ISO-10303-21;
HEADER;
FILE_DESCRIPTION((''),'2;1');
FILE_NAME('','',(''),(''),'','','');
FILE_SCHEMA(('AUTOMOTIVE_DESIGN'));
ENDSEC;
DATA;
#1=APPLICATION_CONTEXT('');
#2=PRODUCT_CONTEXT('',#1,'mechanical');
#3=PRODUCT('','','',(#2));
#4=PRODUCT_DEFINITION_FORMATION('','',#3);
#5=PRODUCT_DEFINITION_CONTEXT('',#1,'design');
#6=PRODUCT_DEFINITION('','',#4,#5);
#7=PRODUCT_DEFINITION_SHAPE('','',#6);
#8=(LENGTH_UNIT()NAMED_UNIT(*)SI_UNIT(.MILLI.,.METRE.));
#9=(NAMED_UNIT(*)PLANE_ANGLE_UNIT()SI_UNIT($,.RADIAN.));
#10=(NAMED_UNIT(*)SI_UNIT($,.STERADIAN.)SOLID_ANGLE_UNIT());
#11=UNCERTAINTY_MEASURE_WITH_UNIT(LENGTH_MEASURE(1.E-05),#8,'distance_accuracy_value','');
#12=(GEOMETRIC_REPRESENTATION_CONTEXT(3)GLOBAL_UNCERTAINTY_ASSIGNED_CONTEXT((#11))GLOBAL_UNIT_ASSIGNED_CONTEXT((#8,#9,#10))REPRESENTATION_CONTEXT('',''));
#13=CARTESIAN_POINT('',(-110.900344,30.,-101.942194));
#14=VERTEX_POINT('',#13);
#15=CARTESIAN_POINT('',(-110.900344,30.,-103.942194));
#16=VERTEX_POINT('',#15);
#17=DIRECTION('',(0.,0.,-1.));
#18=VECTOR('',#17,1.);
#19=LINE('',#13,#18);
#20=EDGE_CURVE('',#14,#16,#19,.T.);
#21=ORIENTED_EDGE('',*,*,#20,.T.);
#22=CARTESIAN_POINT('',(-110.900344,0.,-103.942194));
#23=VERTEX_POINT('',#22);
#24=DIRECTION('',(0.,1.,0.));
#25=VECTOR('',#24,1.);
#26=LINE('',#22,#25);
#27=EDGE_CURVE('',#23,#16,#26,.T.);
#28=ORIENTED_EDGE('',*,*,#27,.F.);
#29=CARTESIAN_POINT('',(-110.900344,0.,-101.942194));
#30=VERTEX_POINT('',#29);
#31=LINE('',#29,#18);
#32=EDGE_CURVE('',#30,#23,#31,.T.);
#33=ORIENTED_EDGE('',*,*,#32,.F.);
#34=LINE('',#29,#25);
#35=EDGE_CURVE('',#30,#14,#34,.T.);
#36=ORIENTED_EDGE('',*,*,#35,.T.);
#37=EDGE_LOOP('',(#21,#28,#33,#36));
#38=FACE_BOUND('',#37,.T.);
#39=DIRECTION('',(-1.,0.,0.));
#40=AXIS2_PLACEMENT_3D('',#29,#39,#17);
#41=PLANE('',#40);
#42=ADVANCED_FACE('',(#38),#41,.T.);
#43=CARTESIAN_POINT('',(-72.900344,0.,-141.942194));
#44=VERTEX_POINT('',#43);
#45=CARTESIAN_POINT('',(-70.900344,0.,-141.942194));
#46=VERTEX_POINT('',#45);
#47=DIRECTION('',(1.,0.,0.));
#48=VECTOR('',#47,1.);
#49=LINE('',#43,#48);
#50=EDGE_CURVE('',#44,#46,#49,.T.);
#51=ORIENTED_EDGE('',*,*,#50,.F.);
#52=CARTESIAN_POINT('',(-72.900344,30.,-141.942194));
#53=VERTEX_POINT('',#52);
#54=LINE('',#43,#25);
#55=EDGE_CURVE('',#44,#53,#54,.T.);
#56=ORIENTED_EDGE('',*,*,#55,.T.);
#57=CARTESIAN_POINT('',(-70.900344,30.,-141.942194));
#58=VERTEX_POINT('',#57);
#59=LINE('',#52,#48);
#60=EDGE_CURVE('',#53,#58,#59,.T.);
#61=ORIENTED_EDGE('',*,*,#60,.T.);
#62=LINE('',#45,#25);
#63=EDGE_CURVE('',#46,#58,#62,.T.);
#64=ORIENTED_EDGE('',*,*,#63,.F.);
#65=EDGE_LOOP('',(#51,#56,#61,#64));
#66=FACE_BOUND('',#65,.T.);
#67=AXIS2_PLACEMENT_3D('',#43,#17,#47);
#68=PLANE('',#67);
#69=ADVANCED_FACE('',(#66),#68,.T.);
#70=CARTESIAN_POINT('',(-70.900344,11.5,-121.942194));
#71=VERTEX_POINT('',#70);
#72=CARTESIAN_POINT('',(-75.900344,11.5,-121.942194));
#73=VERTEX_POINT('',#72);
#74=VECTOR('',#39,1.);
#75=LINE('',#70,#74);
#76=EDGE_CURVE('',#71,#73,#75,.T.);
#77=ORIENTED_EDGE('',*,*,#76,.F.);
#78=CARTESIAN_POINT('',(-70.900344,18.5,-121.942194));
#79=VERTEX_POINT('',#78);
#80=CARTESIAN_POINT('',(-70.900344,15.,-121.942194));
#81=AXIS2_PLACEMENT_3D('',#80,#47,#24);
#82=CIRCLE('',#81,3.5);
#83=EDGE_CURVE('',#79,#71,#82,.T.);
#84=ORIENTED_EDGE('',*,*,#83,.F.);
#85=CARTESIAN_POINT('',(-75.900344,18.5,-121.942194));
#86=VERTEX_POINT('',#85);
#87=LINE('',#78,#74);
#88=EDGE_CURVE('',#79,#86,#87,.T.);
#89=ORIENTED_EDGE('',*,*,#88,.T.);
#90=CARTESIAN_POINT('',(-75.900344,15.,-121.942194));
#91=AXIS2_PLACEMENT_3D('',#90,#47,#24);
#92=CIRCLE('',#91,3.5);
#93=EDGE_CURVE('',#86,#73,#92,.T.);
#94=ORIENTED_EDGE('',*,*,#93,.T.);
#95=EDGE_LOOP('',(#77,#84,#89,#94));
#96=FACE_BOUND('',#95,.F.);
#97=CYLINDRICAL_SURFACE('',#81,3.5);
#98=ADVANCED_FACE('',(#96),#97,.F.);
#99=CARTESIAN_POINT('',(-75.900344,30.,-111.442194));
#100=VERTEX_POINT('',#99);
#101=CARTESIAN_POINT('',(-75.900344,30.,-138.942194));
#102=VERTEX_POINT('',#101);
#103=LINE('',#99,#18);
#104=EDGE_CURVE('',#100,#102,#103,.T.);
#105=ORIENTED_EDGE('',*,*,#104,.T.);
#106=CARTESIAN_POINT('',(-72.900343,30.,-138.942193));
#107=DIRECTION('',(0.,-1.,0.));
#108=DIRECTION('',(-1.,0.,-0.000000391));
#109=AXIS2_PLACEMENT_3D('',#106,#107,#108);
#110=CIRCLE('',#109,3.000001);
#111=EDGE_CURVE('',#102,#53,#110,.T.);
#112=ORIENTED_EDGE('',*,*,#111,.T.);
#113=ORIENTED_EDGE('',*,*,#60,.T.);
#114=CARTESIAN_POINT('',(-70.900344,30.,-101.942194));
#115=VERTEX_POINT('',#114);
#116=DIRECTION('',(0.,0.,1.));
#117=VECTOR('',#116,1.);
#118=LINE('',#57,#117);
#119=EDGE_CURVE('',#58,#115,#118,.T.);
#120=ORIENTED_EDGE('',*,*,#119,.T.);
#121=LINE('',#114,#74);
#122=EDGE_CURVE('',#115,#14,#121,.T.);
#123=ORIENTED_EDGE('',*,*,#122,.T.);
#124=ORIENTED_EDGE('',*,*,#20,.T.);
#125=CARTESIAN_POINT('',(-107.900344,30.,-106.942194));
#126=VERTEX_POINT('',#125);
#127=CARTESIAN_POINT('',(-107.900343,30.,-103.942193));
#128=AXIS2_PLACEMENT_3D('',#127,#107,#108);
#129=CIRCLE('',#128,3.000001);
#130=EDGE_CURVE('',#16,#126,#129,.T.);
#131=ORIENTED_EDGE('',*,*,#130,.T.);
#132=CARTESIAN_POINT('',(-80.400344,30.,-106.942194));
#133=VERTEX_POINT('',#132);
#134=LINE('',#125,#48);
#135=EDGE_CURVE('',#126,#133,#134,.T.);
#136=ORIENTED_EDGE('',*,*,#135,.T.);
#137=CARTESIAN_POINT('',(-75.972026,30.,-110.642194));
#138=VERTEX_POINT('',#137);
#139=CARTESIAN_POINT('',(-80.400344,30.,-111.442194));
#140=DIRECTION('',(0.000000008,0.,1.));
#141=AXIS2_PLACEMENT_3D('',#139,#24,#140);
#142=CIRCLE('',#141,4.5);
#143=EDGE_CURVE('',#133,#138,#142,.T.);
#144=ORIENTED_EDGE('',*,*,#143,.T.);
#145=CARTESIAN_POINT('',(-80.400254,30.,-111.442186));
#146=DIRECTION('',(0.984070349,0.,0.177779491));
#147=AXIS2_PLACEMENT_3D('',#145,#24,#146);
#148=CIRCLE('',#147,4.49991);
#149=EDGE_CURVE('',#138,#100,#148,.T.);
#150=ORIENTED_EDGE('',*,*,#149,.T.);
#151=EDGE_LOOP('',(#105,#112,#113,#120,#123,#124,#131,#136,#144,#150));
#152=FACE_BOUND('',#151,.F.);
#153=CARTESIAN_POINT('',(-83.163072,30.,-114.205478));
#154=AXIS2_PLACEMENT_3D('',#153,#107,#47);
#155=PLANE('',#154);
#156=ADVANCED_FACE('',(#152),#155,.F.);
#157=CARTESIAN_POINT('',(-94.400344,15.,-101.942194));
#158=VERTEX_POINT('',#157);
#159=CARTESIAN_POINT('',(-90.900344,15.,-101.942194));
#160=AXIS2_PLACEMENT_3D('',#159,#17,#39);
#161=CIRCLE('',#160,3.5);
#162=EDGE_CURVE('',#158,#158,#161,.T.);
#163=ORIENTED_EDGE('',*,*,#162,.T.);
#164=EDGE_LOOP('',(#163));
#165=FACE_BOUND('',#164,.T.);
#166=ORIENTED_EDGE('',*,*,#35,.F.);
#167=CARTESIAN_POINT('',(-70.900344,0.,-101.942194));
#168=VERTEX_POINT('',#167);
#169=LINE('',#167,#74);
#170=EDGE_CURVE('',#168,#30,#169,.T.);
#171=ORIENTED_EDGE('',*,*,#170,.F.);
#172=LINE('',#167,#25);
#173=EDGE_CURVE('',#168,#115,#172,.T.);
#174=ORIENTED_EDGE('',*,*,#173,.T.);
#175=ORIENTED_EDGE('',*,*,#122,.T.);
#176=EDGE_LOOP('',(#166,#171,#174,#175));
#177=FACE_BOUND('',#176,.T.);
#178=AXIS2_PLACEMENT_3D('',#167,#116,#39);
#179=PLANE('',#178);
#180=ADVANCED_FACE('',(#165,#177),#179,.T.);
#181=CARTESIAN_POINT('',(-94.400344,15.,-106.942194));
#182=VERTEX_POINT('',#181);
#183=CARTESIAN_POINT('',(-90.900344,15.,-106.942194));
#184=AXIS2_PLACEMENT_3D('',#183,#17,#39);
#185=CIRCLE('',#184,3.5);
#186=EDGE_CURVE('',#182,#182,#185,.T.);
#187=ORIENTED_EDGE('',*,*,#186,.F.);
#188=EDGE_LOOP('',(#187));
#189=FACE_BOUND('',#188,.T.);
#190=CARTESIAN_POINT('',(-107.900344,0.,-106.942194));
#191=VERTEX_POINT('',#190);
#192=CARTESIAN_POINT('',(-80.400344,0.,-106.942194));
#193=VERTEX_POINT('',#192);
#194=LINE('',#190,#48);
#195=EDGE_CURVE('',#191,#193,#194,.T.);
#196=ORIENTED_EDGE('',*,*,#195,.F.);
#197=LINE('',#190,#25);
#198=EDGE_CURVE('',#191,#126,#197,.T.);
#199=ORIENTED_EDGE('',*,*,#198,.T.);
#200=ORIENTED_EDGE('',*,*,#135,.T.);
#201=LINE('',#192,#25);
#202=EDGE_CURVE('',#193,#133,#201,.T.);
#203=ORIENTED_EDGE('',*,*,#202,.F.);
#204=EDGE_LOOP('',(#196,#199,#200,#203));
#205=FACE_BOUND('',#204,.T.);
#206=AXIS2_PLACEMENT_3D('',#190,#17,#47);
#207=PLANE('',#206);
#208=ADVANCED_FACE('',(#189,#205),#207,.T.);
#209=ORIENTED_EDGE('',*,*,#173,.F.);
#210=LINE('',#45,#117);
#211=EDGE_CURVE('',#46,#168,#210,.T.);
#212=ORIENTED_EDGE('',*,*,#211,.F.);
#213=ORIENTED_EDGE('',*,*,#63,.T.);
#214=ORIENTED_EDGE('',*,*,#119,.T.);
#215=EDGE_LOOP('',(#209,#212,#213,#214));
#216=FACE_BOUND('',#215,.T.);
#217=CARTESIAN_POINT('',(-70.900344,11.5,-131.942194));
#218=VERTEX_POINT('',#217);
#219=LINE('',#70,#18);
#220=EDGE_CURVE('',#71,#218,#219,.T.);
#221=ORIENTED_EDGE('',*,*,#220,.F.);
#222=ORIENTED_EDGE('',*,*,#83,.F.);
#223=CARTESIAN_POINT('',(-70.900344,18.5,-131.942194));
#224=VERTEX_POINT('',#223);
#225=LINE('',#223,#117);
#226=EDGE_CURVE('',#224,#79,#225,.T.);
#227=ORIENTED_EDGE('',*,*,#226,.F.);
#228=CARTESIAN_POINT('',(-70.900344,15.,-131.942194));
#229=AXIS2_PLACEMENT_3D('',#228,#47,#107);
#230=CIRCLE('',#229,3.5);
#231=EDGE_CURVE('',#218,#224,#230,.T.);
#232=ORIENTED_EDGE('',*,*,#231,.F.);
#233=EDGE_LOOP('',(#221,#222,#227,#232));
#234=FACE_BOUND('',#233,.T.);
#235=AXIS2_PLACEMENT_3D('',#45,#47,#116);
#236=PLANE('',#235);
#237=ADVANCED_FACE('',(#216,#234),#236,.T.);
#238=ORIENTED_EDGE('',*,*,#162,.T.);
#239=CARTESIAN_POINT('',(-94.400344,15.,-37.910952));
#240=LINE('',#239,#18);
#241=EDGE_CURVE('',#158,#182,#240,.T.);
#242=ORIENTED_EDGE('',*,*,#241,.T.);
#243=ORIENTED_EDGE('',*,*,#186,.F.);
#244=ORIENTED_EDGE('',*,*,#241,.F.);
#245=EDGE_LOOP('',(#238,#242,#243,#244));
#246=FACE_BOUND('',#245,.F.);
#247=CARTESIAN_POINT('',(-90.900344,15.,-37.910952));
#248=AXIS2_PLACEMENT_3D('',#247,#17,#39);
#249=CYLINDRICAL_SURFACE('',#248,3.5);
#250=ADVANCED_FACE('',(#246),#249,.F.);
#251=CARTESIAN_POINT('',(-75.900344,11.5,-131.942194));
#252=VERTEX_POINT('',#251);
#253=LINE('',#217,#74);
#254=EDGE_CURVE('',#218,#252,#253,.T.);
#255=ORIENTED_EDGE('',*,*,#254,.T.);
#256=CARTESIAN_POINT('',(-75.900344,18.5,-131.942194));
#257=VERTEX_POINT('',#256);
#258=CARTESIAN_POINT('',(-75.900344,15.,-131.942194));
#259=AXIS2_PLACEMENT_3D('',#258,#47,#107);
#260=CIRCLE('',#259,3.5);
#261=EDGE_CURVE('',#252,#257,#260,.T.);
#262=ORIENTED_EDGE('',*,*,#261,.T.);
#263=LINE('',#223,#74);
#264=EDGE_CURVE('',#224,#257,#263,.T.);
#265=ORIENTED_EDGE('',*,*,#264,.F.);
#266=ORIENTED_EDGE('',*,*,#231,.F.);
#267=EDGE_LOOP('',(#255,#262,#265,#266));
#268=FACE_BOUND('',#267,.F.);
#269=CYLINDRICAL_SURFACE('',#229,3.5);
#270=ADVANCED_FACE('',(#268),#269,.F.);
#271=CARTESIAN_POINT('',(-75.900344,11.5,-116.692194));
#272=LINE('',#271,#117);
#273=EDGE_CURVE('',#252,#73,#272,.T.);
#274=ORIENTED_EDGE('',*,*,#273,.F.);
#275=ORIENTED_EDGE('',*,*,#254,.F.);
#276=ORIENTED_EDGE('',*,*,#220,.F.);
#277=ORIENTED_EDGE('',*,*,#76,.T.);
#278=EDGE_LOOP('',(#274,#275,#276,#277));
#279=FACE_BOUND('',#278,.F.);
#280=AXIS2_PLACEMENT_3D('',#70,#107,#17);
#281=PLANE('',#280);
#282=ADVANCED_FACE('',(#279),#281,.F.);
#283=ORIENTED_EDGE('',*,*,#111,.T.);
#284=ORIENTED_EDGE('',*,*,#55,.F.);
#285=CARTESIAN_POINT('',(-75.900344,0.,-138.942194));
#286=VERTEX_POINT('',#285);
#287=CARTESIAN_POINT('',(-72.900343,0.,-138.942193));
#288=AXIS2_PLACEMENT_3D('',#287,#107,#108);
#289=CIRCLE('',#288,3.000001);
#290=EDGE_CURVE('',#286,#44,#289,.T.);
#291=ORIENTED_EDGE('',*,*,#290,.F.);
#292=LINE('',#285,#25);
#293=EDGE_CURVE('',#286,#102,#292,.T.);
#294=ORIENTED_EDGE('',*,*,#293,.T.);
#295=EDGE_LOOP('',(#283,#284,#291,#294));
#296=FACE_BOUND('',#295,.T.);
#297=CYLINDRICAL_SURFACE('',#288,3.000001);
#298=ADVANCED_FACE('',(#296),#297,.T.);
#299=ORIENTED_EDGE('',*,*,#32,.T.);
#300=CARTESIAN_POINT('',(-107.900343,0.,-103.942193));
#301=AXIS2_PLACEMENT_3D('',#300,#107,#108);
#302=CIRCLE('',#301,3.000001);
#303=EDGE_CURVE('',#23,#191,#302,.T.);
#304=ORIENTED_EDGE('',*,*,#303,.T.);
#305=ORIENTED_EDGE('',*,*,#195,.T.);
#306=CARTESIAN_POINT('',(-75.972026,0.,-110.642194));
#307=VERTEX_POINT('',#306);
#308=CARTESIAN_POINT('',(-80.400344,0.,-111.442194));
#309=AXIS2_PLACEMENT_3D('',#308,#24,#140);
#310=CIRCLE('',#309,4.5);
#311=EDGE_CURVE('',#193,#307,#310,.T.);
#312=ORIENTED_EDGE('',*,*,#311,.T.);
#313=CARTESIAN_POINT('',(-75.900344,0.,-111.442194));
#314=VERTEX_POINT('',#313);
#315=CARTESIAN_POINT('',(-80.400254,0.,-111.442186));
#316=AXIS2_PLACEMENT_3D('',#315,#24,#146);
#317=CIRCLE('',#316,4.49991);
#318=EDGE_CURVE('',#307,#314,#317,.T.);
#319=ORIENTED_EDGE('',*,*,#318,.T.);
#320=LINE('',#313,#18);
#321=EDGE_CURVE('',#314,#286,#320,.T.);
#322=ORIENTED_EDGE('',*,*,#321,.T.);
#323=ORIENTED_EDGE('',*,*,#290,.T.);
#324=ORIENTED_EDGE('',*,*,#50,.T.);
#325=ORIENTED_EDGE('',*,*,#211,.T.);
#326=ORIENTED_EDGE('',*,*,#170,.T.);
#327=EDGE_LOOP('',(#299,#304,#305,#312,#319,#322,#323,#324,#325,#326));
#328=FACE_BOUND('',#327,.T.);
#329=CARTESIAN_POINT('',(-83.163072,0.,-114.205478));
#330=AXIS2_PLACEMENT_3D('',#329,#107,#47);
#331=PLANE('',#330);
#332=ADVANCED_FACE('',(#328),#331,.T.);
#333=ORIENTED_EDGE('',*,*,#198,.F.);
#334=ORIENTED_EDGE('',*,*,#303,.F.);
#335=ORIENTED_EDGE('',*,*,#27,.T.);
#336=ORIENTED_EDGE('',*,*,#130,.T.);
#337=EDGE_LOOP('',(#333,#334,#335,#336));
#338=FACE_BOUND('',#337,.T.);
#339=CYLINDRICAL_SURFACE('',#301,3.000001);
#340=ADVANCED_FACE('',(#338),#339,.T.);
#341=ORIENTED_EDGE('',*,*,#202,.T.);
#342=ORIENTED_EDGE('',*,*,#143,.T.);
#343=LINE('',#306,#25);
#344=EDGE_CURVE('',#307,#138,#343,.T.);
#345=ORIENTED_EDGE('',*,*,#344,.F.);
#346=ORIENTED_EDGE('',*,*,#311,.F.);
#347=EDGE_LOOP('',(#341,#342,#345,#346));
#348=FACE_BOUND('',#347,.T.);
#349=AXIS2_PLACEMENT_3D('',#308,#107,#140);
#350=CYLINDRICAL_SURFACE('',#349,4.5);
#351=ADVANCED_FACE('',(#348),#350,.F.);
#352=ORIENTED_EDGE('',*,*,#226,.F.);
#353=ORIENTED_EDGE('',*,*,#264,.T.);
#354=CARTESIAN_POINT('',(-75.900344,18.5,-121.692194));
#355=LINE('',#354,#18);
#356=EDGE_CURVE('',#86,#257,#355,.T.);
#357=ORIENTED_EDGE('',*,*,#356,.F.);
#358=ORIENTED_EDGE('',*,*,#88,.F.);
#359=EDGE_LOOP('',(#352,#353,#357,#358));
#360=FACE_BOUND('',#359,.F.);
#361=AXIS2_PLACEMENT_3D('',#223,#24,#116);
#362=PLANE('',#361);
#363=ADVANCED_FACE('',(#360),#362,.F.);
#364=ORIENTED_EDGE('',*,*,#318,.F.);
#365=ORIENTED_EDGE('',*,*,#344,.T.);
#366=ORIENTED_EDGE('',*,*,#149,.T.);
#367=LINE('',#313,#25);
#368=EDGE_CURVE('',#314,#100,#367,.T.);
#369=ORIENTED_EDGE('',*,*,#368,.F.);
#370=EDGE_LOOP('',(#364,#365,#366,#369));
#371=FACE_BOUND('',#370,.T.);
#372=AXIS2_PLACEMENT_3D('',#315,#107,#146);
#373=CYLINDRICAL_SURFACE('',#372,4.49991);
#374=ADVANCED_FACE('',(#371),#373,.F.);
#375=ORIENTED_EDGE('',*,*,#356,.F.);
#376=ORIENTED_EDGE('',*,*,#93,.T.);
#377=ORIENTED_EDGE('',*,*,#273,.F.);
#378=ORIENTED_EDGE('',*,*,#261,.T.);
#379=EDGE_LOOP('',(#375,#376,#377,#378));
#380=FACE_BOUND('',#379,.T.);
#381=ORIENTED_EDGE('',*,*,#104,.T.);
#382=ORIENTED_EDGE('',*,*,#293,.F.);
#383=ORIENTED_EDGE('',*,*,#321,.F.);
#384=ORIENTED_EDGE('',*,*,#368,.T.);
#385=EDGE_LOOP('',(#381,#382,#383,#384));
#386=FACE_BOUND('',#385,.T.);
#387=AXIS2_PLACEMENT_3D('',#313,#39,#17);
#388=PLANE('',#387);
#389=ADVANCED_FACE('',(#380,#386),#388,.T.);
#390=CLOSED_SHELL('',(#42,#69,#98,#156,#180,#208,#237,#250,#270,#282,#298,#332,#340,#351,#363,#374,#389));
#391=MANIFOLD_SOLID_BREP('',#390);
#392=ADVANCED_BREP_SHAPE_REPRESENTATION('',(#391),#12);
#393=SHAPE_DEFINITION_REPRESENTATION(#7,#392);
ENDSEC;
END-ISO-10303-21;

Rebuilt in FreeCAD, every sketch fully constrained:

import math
import FreeCAD as App
import Part
import Sketcher
from FreeCAD import Vector
Q = App.Units.Quantity

doc = App.newDocument("Part")
params = doc.addObject("Spreadsheet::Sheet", "Params")
for row, (alias, value) in enumerate([
    ("sketch1_radius", "3.000001 mm"),
    ("sketch1_radius2", "3.000001 mm"),
    ("sketch1_radius3", "4.5 mm"),
    ("sketch1_width", "2 mm"),
    ("sketch1_width2", "40 mm"),
    ("pad1_length", "30 mm"),
    ("sketch2_diameter", "7 mm"),
    ("hole_diameter", "7 mm"),
    ("sketch3_radius", "3.5 mm"),
    ("sketch3_height", "10 mm"),
    ("pocket1_length", "25 mm"),
], start=1):
    params.set(f"A{row}", alias)
    params.set(f"B{row}", "=" + value)
    params.setAlias(f"B{row}", alias)

body = doc.addObject("PartDesign::Body", "Body")

# Sketch on XZ plane
sketch1 = body.newObject("Sketcher::SketchObject", "Sketch")
sketch1.AttachmentSupport = (doc.getObject("XZ_Plane"), [""])
sketch1.MapMode = "FlatFace"
sketch1.addGeometry([
    Part.ArcOfCircle(Part.Circle(Vector(-80.400344, -111.442194, 0), Vector(0, 0, 1), 4.5), math.radians(10.240349), math.radians(90)),  # 0
    Part.ArcOfCircle(Part.Circle(Vector(-80.400254, -111.442186, 0), Vector(0, 0, 1), 4.49991), math.radians(-0.000105), math.radians(10.240448)),  # 1
    Part.LineSegment(Vector(-75.900344, -111.442194, 0), Vector(-75.900344, -138.942194, 0)),  # 2
    Part.ArcOfCircle(Part.Circle(Vector(-72.900343, -138.942193, 0), Vector(0, 0, 1), 3.000001), math.radians(-179.999978), math.radians(-90.000022)),  # 3
    Part.LineSegment(Vector(-72.900344, -141.942194, 0), Vector(-70.900344, -141.942194, 0)),  # 4
    Part.LineSegment(Vector(-70.900344, -141.942194, 0), Vector(-70.900344, -101.942194, 0)),  # 5
    Part.LineSegment(Vector(-70.900344, -101.942194, 0), Vector(-110.900344, -101.942194, 0)),  # 6
    Part.LineSegment(Vector(-110.900344, -101.942194, 0), Vector(-110.900344, -103.942194, 0)),  # 7
    Part.ArcOfCircle(Part.Circle(Vector(-107.900343, -103.942193, 0), Vector(0, 0, 1), 3.000001), math.radians(-179.999978), math.radians(-90.000022)),  # 8
    Part.LineSegment(Vector(-107.900344, -106.942194, 0), Vector(-80.400344, -106.942194, 0)),  # 9
], False)
sketch1.addConstraint([
    Sketcher.Constraint("Coincident", 0, 1, 1, 2),
    Sketcher.Constraint("Coincident", 1, 1, 2, 1),
    Sketcher.Constraint("Coincident", 2, 2, 3, 1),
    Sketcher.Constraint("Coincident", 3, 2, 4, 1),
    Sketcher.Constraint("Coincident", 4, 2, 5, 1),
    Sketcher.Constraint("Coincident", 5, 2, 6, 1),
    Sketcher.Constraint("Coincident", 6, 2, 7, 1),
    Sketcher.Constraint("Coincident", 7, 2, 8, 1),
    Sketcher.Constraint("Coincident", 8, 2, 9, 1),
    Sketcher.Constraint("Coincident", 9, 2, 0, 2),
    Sketcher.Constraint("Vertical", 2),
    Sketcher.Constraint("Horizontal", 4),
    Sketcher.Constraint("Vertical", 5),
    Sketcher.Constraint("Horizontal", 6),
    Sketcher.Constraint("Vertical", 7),
    Sketcher.Constraint("Horizontal", 9),
    Sketcher.Constraint("Radius", 3, Q("3.000001 mm")),
    Sketcher.Constraint("Radius", 8, Q("3.000001 mm")),
    Sketcher.Constraint("Radius", 0, Q("4.5 mm")),
    Sketcher.Constraint("DistanceX", 4, 1, 4, 2, Q("2 mm")),
    Sketcher.Constraint("DistanceX", 6, 2, 6, 1, Q("40 mm")),
    Sketcher.Constraint("DistanceY", 5, 1, 5, 2, Q("40 mm")),
    Sketcher.Constraint("DistanceY", 7, 2, 7, 1, Q("2 mm")),
    Sketcher.Constraint("DistanceX", 9, 1, 9, 2, Q("27.5 mm")),
    Sketcher.Constraint("DistanceY", 2, 2, 2, 1, Q("27.5 mm")),
    Sketcher.Constraint("DistanceX", 8, 3, 3, 3, Q("35 mm")),
    Sketcher.Constraint("DistanceY", 3, 3, 8, 3, Q("35 mm")),
    Sketcher.Constraint("DistanceY", 3, 2, 2, 2, Q("3 mm")),
    Sketcher.Constraint("DistanceX", 7, 2, 8, 2, Q("3 mm")),
    Sketcher.Constraint("DistanceX", 0, 3, 3, 3, Q("7.500001 mm")),
    Sketcher.Constraint("DistanceY", 0, 3, 0, 1, Q("0.8 mm")),
    Sketcher.Constraint("Radius", 1, Q("4.49991 mm")),
    Sketcher.Constraint("DistanceX", 0, 3, -1, 1, Q("80.400344 mm")),
    Sketcher.Constraint("DistanceY", 0, 3, -1, 1, Q("111.442194 mm")),
])
sketch1.setExpression("Constraints[16]", "Params.sketch1_radius")
sketch1.setExpression("Constraints[17]", "Params.sketch1_radius2")
sketch1.setExpression("Constraints[18]", "Params.sketch1_radius3")
sketch1.setExpression("Constraints[19]", "Params.sketch1_width")
sketch1.setExpression("Constraints[20]", "Params.sketch1_width2")
pad1 = body.newObject("PartDesign::Pad", "Pad")
pad1.Profile = sketch1
pad1.setExpression("Length", "Params.pad1_length")
pad1.Reversed = True

# Sketch on XY plane
sketch2 = body.newObject("Sketcher::SketchObject", "Sketch001")
sketch2.AttachmentSupport = (doc.getObject("XY_Plane"), [""])
sketch2.MapMode = "FlatFace"
sketch2.AttachmentOffset = App.Placement(Vector(0, 0, -101.942194), App.Rotation())
sketch2.addGeometry(Part.Circle(Vector(-90.900344, 15, 0), Vector(0, 0, 1), 3.5), False)
sketch2.addConstraint([
    Sketcher.Constraint("Diameter", 0, Q("7 mm")),
    Sketcher.Constraint("DistanceY", -1, 1, 0, 3, Q("15 mm")),
    Sketcher.Constraint("DistanceX", 0, 3, -1, 1, Q("90.900344 mm")),
])
sketch2.setExpression("Constraints[0]", "Params.sketch2_diameter")
doc.recompute()
hole = body.newObject("PartDesign::Hole", "Hole")
hole.Profile = sketch2
hole.ThreadType = "None"
hole.setExpression("Diameter", "Params.hole_diameter")
hole.DepthType = "ThroughAll"

# Sketch on YZ plane
sketch3 = body.newObject("Sketcher::SketchObject", "Sketch002")
sketch3.AttachmentSupport = (doc.getObject("YZ_Plane"), [""])
sketch3.MapMode = "FlatFace"
sketch3.AttachmentOffset = App.Placement(Vector(0, 0, -70.900344), App.Rotation())
sketch3.addGeometry([
    Part.ArcOfCircle(Part.Circle(Vector(15, -131.942194, 0), Vector(0, 0, 1), 3.5), math.radians(180), math.radians(360)),
    Part.LineSegment(Vector(18.5, -131.942194, 0), Vector(18.5, -121.942194, 0)),
    Part.ArcOfCircle(Part.Circle(Vector(15, -121.942194, 0), Vector(0, 0, 1), 3.5), math.radians(0), math.radians(180)),
    Part.LineSegment(Vector(11.5, -121.942194, 0), Vector(11.5, -131.942194, 0)),
], False)
sketch3.addConstraint([
    Sketcher.Constraint("Tangent", 0, 2, 1, 1),
    Sketcher.Constraint("Tangent", 1, 2, 2, 1),
    Sketcher.Constraint("Tangent", 2, 2, 3, 1),
    Sketcher.Constraint("Tangent", 3, 2, 0, 1),
    Sketcher.Constraint("Vertical", 1),
    Sketcher.Constraint("Vertical", 3),
    Sketcher.Constraint("Radius", 0, Q("3.5 mm")),
    Sketcher.Constraint("DistanceY", 1, 1, 1, 2, Q("10 mm")),
    Sketcher.Constraint("DistanceX", -1, 1, 0, 3, Q("15 mm")),
    Sketcher.Constraint("DistanceY", 0, 3, -1, 1, Q("131.942194 mm")),
])
sketch3.setExpression("Constraints[6]", "Params.sketch3_radius")
sketch3.setExpression("Constraints[7]", "Params.sketch3_height")
pocket1 = body.newObject("PartDesign::Pocket", "Pocket")
pocket1.Profile = sketch3
pocket1.setExpression("Length", "Params.pocket1_length")

doc.recompute()
